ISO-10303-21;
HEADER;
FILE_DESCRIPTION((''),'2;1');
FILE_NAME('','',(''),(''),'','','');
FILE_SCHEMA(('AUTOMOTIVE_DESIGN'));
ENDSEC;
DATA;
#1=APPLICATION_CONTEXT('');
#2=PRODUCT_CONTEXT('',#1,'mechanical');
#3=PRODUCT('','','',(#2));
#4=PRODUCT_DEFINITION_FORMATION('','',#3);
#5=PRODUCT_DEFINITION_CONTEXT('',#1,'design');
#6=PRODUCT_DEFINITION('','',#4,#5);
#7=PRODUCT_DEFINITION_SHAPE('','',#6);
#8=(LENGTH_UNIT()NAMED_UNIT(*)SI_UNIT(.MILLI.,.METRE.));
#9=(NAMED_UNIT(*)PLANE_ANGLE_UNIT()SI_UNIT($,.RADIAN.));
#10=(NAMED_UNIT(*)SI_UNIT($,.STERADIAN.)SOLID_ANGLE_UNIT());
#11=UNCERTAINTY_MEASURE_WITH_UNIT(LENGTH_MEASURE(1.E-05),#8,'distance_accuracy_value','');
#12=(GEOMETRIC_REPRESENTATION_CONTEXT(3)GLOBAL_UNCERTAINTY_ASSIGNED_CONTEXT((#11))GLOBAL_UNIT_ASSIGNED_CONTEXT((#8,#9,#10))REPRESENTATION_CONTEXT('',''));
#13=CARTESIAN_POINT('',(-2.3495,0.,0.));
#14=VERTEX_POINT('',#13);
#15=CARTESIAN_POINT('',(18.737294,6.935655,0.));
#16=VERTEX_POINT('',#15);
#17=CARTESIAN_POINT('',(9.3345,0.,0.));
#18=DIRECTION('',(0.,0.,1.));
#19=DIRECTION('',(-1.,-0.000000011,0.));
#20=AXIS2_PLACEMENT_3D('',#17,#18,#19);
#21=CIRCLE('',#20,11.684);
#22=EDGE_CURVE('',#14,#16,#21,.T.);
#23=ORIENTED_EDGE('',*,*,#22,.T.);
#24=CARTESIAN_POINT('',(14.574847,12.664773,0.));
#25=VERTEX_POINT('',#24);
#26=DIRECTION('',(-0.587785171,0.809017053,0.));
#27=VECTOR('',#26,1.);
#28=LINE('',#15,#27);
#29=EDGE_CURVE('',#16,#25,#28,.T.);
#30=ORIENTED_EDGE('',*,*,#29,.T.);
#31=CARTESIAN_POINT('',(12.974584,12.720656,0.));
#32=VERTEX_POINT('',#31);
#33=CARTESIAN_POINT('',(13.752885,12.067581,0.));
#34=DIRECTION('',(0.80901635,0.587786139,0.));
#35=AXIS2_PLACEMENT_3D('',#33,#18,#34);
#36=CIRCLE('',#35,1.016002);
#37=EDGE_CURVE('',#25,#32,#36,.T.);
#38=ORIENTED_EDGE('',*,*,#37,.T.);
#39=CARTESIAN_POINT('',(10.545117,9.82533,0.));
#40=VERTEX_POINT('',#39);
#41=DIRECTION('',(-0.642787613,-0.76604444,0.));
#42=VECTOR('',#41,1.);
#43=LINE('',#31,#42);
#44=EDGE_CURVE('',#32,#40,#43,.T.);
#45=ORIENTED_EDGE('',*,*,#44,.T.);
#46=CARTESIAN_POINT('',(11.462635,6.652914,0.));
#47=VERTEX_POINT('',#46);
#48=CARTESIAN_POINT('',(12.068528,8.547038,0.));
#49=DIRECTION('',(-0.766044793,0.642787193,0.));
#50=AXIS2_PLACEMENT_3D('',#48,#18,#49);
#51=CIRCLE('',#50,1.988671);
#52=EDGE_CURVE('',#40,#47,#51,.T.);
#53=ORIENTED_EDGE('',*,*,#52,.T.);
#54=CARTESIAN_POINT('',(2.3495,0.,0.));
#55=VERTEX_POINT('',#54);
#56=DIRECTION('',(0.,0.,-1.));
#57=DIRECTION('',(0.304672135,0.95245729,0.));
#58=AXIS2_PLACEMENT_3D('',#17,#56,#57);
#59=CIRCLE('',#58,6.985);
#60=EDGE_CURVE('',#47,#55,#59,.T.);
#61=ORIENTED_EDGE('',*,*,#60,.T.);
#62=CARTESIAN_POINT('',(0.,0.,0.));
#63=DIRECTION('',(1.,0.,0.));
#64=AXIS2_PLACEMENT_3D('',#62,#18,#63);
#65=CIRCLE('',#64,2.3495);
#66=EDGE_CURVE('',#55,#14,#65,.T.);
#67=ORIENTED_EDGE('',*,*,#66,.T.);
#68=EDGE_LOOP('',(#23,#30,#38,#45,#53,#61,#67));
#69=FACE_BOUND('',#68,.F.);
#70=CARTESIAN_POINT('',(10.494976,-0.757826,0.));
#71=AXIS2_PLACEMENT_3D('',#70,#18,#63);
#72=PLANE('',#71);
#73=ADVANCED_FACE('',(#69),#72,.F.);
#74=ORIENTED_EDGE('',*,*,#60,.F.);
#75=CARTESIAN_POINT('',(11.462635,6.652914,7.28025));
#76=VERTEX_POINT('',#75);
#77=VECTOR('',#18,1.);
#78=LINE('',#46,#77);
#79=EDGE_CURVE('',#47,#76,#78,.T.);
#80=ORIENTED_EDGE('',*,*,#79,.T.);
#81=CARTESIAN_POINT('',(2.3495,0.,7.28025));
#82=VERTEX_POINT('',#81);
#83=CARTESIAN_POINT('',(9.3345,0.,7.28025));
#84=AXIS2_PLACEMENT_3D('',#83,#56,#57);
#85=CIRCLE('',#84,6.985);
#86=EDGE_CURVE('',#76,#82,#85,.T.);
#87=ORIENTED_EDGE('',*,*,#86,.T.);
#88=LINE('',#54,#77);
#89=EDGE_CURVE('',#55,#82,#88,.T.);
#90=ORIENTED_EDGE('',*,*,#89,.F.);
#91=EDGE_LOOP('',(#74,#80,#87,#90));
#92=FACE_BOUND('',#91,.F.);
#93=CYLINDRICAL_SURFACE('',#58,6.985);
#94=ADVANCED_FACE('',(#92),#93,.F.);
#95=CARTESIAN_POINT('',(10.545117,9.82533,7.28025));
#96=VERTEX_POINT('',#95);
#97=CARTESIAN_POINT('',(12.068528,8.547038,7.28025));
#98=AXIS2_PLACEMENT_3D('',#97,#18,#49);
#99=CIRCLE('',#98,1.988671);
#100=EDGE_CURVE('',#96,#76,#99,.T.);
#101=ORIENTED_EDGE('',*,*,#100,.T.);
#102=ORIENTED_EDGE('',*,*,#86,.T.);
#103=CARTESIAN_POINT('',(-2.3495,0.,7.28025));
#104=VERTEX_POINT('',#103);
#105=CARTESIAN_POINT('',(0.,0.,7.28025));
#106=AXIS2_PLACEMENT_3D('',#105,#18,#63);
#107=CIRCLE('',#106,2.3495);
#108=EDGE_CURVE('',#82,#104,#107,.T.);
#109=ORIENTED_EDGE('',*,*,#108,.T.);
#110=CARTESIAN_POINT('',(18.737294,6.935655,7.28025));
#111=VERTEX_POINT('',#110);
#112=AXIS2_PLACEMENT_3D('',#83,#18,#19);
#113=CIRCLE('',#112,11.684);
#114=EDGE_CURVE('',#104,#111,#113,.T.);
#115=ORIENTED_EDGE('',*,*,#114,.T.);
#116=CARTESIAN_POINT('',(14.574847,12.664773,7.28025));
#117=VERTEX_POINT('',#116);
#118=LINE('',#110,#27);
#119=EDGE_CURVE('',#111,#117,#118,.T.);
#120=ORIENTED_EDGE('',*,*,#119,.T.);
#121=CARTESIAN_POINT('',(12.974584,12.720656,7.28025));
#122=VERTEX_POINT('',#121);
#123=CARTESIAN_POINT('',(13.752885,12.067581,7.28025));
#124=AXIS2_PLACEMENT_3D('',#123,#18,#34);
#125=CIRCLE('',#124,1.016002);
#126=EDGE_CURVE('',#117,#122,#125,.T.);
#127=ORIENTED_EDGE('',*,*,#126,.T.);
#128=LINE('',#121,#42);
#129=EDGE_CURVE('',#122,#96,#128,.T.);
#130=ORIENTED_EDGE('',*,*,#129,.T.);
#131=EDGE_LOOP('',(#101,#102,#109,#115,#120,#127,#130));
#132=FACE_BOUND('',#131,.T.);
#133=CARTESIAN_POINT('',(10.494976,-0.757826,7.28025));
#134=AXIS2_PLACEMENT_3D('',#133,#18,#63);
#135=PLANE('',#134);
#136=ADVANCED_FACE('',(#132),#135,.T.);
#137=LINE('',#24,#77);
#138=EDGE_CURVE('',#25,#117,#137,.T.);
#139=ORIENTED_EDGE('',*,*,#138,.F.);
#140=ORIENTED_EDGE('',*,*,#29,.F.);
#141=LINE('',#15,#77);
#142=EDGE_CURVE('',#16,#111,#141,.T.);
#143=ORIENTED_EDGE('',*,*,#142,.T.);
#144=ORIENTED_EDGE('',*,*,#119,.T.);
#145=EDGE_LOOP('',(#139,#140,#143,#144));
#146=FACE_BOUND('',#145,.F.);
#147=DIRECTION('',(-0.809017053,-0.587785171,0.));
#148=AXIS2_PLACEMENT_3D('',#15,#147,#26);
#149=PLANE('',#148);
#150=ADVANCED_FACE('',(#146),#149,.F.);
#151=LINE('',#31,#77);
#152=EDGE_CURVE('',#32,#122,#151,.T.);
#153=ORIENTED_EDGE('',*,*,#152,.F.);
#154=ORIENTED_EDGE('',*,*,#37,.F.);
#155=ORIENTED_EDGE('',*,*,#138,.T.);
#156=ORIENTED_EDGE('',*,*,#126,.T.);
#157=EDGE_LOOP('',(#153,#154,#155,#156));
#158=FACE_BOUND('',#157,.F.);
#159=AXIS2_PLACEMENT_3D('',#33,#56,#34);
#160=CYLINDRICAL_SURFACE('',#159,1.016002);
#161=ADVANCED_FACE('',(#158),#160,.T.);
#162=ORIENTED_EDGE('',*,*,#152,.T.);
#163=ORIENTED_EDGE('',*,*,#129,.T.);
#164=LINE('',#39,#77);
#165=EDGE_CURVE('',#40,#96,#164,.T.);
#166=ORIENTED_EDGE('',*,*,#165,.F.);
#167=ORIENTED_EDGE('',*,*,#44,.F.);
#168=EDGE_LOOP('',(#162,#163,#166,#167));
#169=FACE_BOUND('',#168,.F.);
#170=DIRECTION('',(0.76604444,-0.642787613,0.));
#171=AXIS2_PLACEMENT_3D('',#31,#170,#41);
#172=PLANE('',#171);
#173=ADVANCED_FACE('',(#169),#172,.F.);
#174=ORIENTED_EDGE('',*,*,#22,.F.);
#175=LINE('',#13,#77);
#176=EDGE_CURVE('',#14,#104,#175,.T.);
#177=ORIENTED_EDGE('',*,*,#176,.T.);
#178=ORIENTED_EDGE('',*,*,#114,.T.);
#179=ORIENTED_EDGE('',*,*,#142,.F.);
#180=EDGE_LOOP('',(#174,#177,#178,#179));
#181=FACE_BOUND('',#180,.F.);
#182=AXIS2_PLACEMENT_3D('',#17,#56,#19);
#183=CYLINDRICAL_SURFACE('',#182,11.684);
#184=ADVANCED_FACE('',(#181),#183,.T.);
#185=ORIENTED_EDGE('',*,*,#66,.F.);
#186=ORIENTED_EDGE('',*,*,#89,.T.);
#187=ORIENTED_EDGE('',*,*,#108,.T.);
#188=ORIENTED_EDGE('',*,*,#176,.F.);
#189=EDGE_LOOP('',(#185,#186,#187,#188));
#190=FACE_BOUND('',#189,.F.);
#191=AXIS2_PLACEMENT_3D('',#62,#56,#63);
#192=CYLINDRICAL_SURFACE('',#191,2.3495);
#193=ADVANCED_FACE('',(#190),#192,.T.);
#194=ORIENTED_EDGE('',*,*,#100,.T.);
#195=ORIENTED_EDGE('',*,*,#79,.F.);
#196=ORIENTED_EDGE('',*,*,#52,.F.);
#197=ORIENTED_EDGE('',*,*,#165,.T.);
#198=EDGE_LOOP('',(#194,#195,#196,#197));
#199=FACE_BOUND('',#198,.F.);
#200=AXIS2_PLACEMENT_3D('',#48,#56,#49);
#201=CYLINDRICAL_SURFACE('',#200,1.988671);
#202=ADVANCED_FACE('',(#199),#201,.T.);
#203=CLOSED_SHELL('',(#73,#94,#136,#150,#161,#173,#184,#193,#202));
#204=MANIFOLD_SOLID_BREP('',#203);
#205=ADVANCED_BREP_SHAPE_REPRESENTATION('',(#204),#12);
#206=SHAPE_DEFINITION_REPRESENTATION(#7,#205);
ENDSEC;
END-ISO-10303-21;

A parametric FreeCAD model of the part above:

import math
import FreeCAD as App
import Part
import Sketcher

V = App.Vector
Q = App.Units.Quantity

doc = App.newDocument("Part")
body = doc.addObject("PartDesign::Body", "Body")

# Sketch on XY plane
sketch1 = doc.addObject("Sketcher::SketchObject", "Sketch")
body.addObject(sketch1)
sketch1.AttachmentSupport = (doc.XY_Plane, [""])
sketch1.MapMode = "FlatFace"
sketch1.addGeometry(Part.ArcOfCircle(Part.Circle(V(9.3, 0, 0), V(0, 0, 1), 11.7), math.radians(-180), math.radians(36)), False)
sketch1.addGeometry(Part.LineSegment(V(18.7, 6.9, 0), V(14.6, 12.7, 0)), False)
sketch1.addGeometry(Part.ArcOfCircle(Part.Circle(V(13.8, 12.1, 0), V(0, 0, 1), 1), math.radians(36), math.radians(140)), False)
sketch1.addGeometry(Part.LineSegment(V(13, 12.7, 0), V(10.5, 9.8, 0)), False)
sketch1.addGeometry(Part.ArcOfCircle(Part.Circle(V(12.1, 8.5, 0), V(0, 0, 1), 2), math.radians(140), math.radians(252)), False)
sketch1.addGeometry(Part.ArcOfCircle(Part.Circle(V(9.3, 0, 0), V(0, 0, 1), 7), math.radians(180), math.radians(432)), False)
sketch1.addGeometry(Part.ArcOfCircle(Part.Circle(V(0, 0, 0), V(0, 0, 1), 2.3), math.radians(0), math.radians(180)), False)
sketch1.addConstraint(Sketcher.Constraint("Coincident", 0, 2, 1, 1))
sketch1.addConstraint(Sketcher.Constraint("Tangent", 1, 2, 2, 1))
sketch1.addConstraint(Sketcher.Constraint("Tangent", 2, 2, 3, 1))
sketch1.addConstraint(Sketcher.Constraint("Tangent", 3, 2, 4, 1))
sketch1.addConstraint(Sketcher.Constraint("Tangent", 4, 2, 5, 2))
sketch1.addConstraint(Sketcher.Constraint("Tangent", 5, 1, 6, 1))
sketch1.addConstraint(Sketcher.Constraint("Tangent", 6, 2, 0, 1))
sketch1.addConstraint(Sketcher.Constraint("Coincident", 6, 3, -1, 1))
sketch1.addConstraint(Sketcher.Constraint("Coincident", 5, 3, 0, 3))
sketch1.addConstraint(Sketcher.Constraint("PointOnObject", 0, 3, -1))
sketch1.addConstraint(Sketcher.Constraint("Radius", 0, Q("0.46 in")))
sketch1.addConstraint(Sketcher.Constraint("Radius", 2, Q("0.0400001 in")))
sketch1.addConstraint(Sketcher.Constraint("Angle", 1, Q("125.999994 deg")))
sketch1.addConstraint(Sketcher.Constraint("Angle", 3, Q("-130 deg")))
sketch1.addConstraint(Sketcher.Constraint("Radius", 5, Q("0.275 in")))
sketch1.addConstraint(Sketcher.Constraint("Radius", 4, Q("1.988671 mm")))
sketch1.addConstraint(Sketcher.Constraint("DistanceY", 0, 2, 2, 2, Q("5.785001 mm")))
sketch1.addConstraint(Sketcher.Constraint("Distance", 3, Q("3.77958 mm")))
pad1 = doc.addObject("PartDesign::Pad", "Pad")
body.addObject(pad1)
pad1.Profile = sketch1
pad1.Length = 7.28025

doc.recompute()
